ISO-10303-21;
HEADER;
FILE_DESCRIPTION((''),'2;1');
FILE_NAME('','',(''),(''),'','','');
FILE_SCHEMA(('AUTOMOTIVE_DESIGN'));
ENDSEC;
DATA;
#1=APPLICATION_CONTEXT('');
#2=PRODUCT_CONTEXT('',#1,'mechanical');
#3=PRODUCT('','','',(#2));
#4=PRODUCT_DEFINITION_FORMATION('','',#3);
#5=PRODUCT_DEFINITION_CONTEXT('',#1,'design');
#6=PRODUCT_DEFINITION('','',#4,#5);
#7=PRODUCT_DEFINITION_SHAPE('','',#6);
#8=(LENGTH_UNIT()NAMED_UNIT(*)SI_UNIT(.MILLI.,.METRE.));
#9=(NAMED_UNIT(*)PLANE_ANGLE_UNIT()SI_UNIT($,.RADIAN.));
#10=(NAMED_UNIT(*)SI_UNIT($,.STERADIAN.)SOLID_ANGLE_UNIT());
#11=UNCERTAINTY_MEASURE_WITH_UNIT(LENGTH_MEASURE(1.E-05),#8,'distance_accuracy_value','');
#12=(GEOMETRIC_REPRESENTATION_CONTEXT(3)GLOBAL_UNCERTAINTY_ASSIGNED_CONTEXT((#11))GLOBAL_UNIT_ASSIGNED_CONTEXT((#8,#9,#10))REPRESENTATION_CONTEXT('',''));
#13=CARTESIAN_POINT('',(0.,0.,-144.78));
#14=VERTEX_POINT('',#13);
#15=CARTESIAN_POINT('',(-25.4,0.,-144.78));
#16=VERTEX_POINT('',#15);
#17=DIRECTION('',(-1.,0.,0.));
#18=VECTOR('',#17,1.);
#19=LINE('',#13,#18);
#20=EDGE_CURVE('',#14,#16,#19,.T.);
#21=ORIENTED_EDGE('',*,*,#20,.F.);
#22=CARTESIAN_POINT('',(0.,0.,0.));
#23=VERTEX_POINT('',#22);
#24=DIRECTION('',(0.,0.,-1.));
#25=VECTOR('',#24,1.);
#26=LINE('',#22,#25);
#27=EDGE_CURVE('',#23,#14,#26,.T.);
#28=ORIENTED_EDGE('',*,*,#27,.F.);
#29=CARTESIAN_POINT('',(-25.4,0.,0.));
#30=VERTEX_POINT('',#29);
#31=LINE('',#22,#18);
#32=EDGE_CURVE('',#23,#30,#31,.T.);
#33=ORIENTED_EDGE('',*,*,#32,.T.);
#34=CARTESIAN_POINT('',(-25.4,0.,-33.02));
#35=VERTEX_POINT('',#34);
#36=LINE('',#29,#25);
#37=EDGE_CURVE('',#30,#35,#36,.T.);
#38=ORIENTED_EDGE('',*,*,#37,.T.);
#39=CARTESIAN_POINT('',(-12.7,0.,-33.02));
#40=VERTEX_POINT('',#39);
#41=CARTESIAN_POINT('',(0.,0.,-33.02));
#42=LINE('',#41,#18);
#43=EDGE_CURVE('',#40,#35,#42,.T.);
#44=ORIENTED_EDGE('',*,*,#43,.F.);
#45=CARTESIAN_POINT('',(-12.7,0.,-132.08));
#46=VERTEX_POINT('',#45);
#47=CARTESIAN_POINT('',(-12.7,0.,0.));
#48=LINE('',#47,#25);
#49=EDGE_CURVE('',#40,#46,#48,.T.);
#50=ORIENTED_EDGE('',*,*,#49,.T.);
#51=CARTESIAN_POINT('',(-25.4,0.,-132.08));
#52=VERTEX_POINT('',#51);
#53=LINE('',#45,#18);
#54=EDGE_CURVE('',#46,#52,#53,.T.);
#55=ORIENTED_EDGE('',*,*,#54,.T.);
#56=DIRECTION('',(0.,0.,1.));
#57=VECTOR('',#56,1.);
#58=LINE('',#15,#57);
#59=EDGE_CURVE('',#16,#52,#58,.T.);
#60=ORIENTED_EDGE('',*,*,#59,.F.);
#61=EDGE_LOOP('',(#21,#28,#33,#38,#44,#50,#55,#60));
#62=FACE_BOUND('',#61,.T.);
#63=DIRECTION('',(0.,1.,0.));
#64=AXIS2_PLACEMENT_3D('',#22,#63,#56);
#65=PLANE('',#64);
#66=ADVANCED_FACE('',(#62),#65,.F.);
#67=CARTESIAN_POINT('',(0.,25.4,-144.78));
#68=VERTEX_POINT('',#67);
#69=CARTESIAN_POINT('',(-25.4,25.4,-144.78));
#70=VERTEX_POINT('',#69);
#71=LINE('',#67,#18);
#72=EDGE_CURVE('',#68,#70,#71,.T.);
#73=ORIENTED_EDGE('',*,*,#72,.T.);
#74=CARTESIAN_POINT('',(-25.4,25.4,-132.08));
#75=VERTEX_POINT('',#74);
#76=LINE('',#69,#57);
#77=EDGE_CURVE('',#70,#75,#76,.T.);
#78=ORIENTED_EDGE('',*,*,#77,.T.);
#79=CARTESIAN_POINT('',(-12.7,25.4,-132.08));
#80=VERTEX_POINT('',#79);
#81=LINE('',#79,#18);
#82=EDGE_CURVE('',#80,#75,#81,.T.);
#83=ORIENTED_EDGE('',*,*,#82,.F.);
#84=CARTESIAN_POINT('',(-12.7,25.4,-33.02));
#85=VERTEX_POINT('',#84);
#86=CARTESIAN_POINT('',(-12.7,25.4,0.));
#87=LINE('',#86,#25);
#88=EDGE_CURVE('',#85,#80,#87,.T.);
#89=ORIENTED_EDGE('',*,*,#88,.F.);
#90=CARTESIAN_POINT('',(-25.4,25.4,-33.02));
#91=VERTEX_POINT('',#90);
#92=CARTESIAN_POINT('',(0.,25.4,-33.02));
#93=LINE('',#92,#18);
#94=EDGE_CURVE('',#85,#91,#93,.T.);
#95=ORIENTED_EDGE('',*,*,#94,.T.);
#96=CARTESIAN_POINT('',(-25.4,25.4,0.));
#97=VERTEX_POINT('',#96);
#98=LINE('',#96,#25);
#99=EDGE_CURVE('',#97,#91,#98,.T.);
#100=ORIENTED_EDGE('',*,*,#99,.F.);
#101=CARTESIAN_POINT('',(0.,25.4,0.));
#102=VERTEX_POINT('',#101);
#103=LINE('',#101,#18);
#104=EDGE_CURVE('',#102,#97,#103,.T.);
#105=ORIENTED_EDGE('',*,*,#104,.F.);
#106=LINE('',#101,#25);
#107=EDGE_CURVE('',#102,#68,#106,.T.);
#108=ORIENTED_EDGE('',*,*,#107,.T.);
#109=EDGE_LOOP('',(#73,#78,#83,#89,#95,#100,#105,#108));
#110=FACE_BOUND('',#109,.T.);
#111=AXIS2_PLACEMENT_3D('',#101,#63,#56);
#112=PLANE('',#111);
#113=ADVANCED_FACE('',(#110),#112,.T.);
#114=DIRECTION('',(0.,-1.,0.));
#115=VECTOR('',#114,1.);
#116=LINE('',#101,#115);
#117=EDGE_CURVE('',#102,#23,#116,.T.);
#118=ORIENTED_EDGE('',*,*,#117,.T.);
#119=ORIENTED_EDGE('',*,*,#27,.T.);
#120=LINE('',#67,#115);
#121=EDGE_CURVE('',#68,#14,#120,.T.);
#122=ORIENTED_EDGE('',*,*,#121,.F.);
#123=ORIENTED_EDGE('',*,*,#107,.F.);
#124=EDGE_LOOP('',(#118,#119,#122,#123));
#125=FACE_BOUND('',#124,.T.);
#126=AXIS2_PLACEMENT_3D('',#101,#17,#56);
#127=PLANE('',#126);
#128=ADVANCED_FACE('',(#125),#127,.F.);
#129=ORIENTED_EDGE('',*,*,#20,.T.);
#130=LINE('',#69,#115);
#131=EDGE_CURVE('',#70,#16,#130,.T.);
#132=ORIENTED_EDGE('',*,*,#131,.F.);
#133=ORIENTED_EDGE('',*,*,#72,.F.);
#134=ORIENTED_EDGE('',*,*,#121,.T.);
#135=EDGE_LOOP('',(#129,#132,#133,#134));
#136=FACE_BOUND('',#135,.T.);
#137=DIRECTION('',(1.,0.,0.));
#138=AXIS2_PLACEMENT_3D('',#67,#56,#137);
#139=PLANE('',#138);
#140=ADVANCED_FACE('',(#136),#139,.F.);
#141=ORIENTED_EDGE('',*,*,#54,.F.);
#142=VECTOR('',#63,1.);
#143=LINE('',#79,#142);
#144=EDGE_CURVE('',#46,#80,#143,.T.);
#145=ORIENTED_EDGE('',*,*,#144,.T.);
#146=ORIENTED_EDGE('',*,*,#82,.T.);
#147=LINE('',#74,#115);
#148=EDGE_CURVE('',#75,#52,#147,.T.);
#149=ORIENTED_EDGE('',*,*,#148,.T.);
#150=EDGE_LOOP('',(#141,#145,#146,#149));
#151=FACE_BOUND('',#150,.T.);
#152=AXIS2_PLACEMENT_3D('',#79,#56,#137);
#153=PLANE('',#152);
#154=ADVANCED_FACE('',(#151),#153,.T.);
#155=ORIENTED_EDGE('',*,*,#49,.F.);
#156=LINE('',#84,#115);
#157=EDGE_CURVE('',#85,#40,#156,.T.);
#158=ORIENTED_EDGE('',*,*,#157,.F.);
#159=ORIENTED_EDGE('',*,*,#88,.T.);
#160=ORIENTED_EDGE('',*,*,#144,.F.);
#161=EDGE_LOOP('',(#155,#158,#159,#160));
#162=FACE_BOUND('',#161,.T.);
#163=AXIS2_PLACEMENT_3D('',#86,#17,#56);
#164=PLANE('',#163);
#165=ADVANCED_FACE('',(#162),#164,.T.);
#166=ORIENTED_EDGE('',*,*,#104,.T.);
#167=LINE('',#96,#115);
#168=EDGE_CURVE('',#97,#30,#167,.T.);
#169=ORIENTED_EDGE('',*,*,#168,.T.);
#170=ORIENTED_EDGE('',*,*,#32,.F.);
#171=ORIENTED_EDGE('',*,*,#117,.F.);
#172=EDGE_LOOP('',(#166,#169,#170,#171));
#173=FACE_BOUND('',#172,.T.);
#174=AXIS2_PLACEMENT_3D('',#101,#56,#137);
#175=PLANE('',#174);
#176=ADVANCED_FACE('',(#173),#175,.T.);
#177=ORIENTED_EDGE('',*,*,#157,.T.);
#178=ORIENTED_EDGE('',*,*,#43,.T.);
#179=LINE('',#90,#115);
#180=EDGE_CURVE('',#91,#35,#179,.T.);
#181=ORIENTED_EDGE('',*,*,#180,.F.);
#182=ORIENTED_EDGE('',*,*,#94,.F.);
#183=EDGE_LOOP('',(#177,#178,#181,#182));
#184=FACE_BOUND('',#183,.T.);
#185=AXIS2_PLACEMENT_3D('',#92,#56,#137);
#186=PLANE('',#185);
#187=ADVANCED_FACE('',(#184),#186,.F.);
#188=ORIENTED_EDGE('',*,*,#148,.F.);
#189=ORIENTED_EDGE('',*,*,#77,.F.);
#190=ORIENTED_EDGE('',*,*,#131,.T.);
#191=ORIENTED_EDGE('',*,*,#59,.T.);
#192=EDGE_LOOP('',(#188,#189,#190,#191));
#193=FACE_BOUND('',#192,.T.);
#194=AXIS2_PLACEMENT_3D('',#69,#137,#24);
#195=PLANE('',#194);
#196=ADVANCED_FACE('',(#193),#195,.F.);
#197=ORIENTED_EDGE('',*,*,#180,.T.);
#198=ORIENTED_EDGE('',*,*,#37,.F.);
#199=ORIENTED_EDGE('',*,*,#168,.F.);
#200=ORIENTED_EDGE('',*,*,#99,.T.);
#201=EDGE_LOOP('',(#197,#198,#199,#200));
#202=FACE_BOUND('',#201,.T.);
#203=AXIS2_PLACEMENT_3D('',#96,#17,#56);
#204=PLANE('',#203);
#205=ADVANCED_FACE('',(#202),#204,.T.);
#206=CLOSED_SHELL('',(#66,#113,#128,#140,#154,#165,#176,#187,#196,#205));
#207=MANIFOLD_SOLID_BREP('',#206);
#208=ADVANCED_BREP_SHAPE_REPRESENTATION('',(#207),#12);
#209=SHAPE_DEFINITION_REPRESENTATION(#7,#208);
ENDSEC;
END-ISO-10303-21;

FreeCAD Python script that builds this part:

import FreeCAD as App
import Part
import Sketcher

V = App.Vector
Q = App.Units.Quantity


def add_polygon(sketch, points):
    """Adds a closed chain of lines whose ends are joined by coincident constraints."""
    first, n = sketch.GeometryCount, len(points)
    for a, b in zip(points, points[1:] + points[:1]):
        sketch.addGeometry(Part.LineSegment(App.Vector(*a, 0), App.Vector(*b, 0)), False)
    for i in range(n):
        sketch.addConstraint(Sketcher.Constraint("Coincident", first + i, 2, first + (i + 1) % n, 1))

doc = App.newDocument("Part")
body = doc.addObject("PartDesign::Body", "Body")

sketch1 = body.newObject("Sketcher::SketchObject", "Sketch")
sketch1.AttachmentSupport = (doc.getObject("XZ_Plane"), [""])
sketch1.MapMode = "FlatFace"
add_polygon(sketch1, [(-25.4, -33.02), (-25.4, 0), (0, 0), (0, -144.78), (-25.4, -144.78), (-25.4, -132.08), (-12.7, -132.08), (-12.7, -33.02)])
sketch1.addConstraint(Sketcher.Constraint("Vertical", 0))
sketch1.addConstraint(Sketcher.Constraint("Horizontal", 1))
sketch1.addConstraint(Sketcher.Constraint("Vertical", 2))
sketch1.addConstraint(Sketcher.Constraint("Horizontal", 3))
sketch1.addConstraint(Sketcher.Constraint("Vertical", 4))
sketch1.addConstraint(Sketcher.Constraint("Horizontal", 5))
sketch1.addConstraint(Sketcher.Constraint("Vertical", 6))
sketch1.addConstraint(Sketcher.Constraint("Horizontal", 7))
sketch1.addConstraint(Sketcher.Constraint("Coincident", 1, 2, -1, 1))
sketch1.addConstraint(Sketcher.Constraint("Vertical", 0, 2, 3, 2))
sketch1.addConstraint(Sketcher.Constraint("Equal", 7, 4))
sketch1.addConstraint(Sketcher.Constraint("DistanceX", 1, 1, 1, 2, Q("1 in")))
sketch1.addConstraint(Sketcher.Constraint("DistanceX", 5, 1, 5, 2, Q("0.5 in")))
sketch1.addConstraint(Sketcher.Constraint("DistanceY", 0, 1, 0, 2, Q("1.3 in")))
sketch1.addConstraint(Sketcher.Constraint("DistanceY", 2, 2, 2, 1, Q("5.7 in")))
pad1 = body.newObject("PartDesign::Pad", "Pad")
pad1.Profile = sketch1
pad1.Length = Q("1 in")
pad1.Reversed = True

doc.recompute()
